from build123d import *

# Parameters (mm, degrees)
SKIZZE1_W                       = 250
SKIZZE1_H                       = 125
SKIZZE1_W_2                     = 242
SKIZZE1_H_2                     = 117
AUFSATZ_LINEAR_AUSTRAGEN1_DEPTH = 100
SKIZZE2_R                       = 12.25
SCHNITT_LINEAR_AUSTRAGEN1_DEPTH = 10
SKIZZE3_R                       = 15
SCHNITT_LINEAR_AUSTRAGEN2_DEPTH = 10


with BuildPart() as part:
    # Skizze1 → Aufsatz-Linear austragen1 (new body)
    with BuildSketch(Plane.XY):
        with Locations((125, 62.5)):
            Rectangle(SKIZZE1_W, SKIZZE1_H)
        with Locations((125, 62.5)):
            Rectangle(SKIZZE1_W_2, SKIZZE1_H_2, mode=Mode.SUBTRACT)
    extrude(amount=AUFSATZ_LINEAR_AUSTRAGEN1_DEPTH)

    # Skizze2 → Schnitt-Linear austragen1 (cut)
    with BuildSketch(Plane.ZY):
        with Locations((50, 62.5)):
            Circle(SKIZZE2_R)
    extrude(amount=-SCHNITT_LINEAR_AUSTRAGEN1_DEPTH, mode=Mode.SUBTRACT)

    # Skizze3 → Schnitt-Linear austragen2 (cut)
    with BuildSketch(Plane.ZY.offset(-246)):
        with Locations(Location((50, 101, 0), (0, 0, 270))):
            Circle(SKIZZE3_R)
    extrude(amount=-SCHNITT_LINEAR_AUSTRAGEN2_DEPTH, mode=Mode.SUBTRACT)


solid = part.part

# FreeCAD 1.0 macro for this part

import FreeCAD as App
import Part
import Sketcher

V = App.Vector

doc = App.newDocument("Part")
body = doc.addObject("PartDesign::Body", "Body")

sketch1 = body.newObject("Sketcher::SketchObject", "Sketch")
sketch1.AttachmentSupport = (doc.getObject("XY_Plane"), [""])
sketch1.MapMode = "FlatFace"
sketch1.addGeometry([
    Part.LineSegment(V(0, 125, 0), V(0, 0, 0)),
    Part.LineSegment(V(0, 0, 0), V(250, 0, 0)),
    Part.LineSegment(V(250, 0, 0), V(250, 125, 0)),
    Part.LineSegment(V(250, 125, 0), V(0, 125, 0)),
    Part.LineSegment(V(246, 4, 0), V(4, 4, 0)),
    Part.LineSegment(V(4, 4, 0), V(4, 121, 0)),
    Part.LineSegment(V(4, 121, 0), V(246, 121, 0)),
    Part.LineSegment(V(246, 121, 0), V(246, 4, 0)),
], False)
sketch1.addConstraint([
    Sketcher.Constraint("Coincident", 0, 2, 1, 1),
    Sketcher.Constraint("Coincident", 1, 2, 2, 1),
    Sketcher.Constraint("Coincident", 2, 2, 3, 1),
    Sketcher.Constraint("Coincident", 3, 2, 0, 1),
    Sketcher.Constraint("Coincident", 4, 2, 5, 1),
    Sketcher.Constraint("Coincident", 5, 2, 6, 1),
    Sketcher.Constraint("Coincident", 6, 2, 7, 1),
    Sketcher.Constraint("Coincident", 7, 2, 4, 1),
    Sketcher.Constraint("Vertical", 0),
    Sketcher.Constraint("Horizontal", 1),
    Sketcher.Constraint("Vertical", 2),
    Sketcher.Constraint("Horizontal", 3),
    Sketcher.Constraint("Horizontal", 4),
    Sketcher.Constraint("Vertical", 5),
    Sketcher.Constraint("Horizontal", 6),
    Sketcher.Constraint("Vertical", 7),
    Sketcher.Constraint("Coincident", 0, 2, -1, 1),
    Sketcher.Constraint("DistanceX", 1, 1, 1, 2, 250.0),
    Sketcher.Constraint("DistanceX", 4, 2, 4, 1, 242.0),
    Sketcher.Constraint("DistanceY", 0, 2, 0, 1, 125.0),
    Sketcher.Constraint("DistanceY", 5, 1, 5, 2, 117.0),
    Sketcher.Constraint("DistanceX", -1, 1, 4, 2, 4.0),
    Sketcher.Constraint("DistanceY", -1, 1, 4, 2, 4.0),
])
pad1 = body.newObject("PartDesign::Pad", "Pad")
pad1.Profile = sketch1
pad1.Length = 100

sketch2 = body.newObject("Sketcher::SketchObject", "Sketch001")
sketch2.AttachmentSupport = (doc.getObject("YZ_Plane"), [""])
sketch2.MapMode = "FlatFace"
sketch2.addGeometry(Part.Circle(V(62, 50, 0), V(0, 0, 1), 12), False)
sketch2.addConstraint([
    Sketcher.Constraint("Diameter", 0, 24.5),
    Sketcher.Constraint("DistanceY", -1, 1, 0, 3, 50.0),
    Sketcher.Constraint("DistanceX", -1, 1, 0, 3, 62.5),
])
pocket1 = body.newObject("PartDesign::Pocket", "Pocket")
pocket1.Profile = sketch2
pocket1.Length = 10
pocket1.Reversed = True

sketch3 = body.newObject("Sketcher::SketchObject", "Sketch002")
sketch3.AttachmentSupport = (doc.getObject("YZ_Plane"), [""])
sketch3.MapMode = "FlatFace"
sketch3.AttachmentOffset = App.Placement(V(0, 0, 246), App.Rotation())
sketch3.addGeometry(Part.Circle(V(101, 50, 0), V(0, 0, 1), 15), False)
sketch3.addConstraint([
    Sketcher.Constraint("Diameter", 0, 30.0),
    Sketcher.Constraint("DistanceX", -1, 1, 0, 3, 101.0),
    Sketcher.Constraint("DistanceY", -1, 1, 0, 3, 50.0),
])
pocket2 = body.newObject("PartDesign::Pocket", "Pocket001")
pocket2.Profile = sketch3
pocket2.Length = 10
pocket2.Reversed = True

doc.recompute()
